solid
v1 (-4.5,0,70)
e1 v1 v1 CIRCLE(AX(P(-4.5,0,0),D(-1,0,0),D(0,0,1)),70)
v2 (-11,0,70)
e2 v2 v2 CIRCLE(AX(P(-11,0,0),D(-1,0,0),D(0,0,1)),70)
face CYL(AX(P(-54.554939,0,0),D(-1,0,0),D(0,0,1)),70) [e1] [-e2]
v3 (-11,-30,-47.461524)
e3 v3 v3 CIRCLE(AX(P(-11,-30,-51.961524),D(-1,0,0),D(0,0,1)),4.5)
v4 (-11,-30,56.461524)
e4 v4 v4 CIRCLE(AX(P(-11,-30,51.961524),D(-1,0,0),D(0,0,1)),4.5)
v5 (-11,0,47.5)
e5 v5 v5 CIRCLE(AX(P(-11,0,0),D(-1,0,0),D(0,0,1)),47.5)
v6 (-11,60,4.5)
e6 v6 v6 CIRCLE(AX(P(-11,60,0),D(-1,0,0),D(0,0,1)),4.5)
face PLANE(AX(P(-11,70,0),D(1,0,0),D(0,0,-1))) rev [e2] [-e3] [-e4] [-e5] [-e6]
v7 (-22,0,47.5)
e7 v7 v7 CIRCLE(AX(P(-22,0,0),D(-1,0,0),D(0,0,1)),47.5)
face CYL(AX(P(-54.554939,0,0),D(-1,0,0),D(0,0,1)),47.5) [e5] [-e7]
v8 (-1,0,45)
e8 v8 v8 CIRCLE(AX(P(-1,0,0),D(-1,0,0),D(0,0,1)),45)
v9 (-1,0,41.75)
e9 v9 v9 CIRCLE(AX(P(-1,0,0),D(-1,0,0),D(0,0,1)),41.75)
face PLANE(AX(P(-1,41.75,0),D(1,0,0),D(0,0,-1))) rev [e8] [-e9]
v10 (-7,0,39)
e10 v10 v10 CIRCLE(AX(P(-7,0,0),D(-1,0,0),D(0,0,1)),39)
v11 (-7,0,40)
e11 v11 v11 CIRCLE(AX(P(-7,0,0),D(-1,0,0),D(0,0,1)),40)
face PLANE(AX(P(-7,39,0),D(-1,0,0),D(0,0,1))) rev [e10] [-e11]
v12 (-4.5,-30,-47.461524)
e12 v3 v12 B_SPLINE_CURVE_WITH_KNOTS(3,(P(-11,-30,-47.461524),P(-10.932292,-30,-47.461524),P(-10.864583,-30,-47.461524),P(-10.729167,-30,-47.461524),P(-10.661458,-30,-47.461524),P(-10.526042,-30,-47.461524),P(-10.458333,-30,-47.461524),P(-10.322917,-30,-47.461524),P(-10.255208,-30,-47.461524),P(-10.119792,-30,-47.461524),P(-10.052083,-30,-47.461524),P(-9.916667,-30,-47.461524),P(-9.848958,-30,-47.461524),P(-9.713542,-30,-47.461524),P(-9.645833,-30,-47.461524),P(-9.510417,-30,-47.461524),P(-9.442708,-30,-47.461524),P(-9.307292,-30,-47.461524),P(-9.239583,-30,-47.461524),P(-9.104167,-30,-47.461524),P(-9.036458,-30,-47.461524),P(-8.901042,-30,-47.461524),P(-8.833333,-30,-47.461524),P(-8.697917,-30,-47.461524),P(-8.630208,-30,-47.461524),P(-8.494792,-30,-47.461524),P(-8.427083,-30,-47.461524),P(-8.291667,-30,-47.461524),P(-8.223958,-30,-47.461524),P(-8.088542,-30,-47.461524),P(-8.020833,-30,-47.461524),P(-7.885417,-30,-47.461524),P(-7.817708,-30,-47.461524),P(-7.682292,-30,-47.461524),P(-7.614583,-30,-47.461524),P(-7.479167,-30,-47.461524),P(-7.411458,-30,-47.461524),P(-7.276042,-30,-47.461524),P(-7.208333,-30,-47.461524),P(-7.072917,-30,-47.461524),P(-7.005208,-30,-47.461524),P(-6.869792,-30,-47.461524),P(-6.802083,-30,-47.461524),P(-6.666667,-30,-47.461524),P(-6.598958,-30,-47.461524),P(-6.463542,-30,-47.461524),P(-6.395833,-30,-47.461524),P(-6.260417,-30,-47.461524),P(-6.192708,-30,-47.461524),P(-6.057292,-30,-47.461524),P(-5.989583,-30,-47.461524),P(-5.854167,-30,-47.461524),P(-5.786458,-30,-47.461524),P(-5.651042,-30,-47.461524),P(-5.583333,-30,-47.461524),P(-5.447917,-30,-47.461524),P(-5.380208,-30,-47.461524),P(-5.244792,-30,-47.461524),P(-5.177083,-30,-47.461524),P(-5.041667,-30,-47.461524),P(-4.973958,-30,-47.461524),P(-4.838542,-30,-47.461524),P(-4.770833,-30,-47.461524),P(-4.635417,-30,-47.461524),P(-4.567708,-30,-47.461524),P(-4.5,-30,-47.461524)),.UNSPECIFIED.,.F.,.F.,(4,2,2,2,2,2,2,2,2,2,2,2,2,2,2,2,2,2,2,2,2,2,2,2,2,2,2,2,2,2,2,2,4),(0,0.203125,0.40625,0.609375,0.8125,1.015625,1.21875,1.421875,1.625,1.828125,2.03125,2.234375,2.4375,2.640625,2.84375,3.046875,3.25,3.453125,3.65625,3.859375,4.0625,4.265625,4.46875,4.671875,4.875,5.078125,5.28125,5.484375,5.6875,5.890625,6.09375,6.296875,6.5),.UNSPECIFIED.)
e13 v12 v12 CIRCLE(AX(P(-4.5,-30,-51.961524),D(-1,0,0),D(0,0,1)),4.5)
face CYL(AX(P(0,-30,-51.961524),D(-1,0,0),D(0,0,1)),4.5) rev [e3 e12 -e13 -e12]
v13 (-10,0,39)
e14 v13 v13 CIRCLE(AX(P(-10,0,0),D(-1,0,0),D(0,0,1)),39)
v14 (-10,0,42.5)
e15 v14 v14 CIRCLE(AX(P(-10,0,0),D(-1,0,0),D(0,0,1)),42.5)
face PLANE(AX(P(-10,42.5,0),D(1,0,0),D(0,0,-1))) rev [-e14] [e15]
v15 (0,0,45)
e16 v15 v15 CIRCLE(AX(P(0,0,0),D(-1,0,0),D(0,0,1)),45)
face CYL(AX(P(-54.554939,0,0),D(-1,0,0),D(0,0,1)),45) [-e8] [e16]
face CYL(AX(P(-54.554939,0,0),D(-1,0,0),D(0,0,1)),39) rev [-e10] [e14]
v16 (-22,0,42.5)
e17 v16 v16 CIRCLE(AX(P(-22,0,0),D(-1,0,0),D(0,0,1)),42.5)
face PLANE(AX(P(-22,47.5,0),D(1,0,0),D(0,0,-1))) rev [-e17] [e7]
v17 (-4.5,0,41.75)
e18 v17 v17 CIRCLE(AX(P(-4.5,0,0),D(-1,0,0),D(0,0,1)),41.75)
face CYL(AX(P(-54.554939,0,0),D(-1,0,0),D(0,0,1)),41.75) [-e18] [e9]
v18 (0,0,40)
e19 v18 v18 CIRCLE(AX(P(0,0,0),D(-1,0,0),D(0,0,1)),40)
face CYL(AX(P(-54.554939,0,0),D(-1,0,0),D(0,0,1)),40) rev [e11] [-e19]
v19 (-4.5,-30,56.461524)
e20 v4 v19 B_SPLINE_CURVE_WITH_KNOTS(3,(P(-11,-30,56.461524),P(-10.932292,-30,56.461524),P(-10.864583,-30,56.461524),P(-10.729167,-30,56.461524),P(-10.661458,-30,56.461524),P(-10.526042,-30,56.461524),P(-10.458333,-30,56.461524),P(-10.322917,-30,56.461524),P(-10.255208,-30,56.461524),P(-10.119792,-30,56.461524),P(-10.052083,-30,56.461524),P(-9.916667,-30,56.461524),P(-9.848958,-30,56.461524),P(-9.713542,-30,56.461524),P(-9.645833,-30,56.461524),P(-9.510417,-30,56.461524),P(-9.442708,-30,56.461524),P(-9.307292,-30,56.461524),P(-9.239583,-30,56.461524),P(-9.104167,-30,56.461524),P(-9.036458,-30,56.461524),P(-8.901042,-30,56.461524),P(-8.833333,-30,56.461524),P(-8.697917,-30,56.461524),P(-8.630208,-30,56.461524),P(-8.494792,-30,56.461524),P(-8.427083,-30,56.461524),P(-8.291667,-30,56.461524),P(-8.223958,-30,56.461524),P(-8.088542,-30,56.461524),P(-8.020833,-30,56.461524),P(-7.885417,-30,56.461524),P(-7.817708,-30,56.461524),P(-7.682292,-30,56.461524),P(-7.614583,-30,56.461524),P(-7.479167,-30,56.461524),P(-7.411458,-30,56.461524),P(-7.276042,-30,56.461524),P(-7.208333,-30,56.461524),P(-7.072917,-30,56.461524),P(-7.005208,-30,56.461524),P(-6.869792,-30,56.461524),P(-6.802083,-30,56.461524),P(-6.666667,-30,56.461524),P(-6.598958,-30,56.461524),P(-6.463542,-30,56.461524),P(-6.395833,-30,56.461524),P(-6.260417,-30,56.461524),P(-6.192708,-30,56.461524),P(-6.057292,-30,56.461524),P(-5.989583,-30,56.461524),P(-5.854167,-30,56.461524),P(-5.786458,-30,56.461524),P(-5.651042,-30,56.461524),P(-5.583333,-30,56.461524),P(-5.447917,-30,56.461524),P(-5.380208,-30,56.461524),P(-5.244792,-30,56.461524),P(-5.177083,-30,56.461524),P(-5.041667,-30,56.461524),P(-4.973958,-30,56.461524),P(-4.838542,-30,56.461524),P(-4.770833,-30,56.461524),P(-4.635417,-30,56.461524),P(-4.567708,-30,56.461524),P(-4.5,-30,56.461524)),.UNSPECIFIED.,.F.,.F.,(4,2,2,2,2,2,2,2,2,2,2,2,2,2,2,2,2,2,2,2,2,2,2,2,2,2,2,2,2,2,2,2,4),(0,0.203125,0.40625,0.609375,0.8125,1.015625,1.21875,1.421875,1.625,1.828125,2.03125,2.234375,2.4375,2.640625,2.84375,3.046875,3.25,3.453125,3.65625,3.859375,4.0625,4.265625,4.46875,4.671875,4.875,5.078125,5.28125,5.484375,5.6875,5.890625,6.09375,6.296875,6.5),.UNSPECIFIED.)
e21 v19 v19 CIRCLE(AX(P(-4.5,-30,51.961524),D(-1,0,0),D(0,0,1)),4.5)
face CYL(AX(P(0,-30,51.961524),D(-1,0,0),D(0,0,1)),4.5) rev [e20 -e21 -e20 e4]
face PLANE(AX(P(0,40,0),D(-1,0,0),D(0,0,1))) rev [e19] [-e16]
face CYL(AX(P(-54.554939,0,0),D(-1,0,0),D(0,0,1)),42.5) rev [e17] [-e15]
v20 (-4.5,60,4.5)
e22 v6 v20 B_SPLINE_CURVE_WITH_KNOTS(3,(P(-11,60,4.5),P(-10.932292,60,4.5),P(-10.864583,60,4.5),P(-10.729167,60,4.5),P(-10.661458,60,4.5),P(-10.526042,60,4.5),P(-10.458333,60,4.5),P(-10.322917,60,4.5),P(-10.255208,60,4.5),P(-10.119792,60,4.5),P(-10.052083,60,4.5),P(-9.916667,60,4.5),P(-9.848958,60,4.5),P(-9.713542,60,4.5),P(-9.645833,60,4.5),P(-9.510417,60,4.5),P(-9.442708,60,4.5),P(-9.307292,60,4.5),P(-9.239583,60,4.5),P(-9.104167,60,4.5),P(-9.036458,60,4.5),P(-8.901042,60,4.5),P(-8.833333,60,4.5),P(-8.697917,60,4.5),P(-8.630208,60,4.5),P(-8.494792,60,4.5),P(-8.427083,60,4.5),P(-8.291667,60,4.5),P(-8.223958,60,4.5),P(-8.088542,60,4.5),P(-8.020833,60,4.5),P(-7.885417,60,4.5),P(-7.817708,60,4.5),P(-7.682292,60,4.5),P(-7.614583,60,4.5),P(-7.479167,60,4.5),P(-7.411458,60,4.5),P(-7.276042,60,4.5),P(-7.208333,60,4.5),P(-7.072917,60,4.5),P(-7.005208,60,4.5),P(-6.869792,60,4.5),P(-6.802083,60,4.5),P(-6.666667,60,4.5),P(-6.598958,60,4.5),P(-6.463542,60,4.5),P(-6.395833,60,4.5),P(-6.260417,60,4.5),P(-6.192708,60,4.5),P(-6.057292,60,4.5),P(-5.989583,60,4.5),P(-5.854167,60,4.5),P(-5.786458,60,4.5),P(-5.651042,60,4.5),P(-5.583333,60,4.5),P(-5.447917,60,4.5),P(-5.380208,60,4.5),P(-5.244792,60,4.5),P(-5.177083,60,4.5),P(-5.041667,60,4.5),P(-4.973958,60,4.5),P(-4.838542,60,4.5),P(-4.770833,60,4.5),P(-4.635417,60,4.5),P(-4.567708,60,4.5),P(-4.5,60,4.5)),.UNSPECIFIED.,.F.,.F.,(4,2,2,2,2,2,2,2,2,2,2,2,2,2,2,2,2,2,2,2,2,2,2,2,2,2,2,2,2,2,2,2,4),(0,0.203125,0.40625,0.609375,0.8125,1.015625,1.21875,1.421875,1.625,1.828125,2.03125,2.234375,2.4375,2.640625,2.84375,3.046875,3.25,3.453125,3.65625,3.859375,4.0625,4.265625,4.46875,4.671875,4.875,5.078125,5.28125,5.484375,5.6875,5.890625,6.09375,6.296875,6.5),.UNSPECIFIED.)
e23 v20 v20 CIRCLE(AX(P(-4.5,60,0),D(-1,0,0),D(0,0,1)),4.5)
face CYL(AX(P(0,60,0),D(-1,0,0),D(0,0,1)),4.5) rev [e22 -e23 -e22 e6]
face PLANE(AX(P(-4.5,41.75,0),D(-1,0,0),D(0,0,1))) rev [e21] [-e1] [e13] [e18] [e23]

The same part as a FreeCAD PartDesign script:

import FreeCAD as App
import Part
import Sketcher
from FreeCAD import Vector
Q = App.Units.Quantity

doc = App.newDocument("Part")
body = doc.addObject("PartDesign::Body", "Body")

sketch1 = body.newObject("Sketcher::SketchObject", "Sketch")
sketch1.AttachmentSupport = (doc.getObject("XY_Plane"), [""])
sketch1.MapMode = "FlatFace"
sketch1.addGeometry(Part.LineSegment(Vector(0, 40, 0), Vector(0, 45, 0)), False)
sketch1.addGeometry(Part.LineSegment(Vector(0, 45, 0), Vector(-1, 45, 0)), False)
sketch1.addGeometry(Part.LineSegment(Vector(-1, 45, 0), Vector(-1, 41.8, 0)), False)
sketch1.addGeometry(Part.LineSegment(Vector(-1, 41.8, 0), Vector(-4.5, 41.8, 0)), False)
sketch1.addGeometry(Part.LineSegment(Vector(-4.5, 41.8, 0), Vector(-4.5, 70, 0)), False)
sketch1.addGeometry(Part.LineSegment(Vector(-4.5, 70, 0), Vector(-11, 70, 0)), False)
sketch1.addGeometry(Part.LineSegment(Vector(-11, 70, 0), Vector(-11, 47.5, 0)), False)
sketch1.addGeometry(Part.LineSegment(Vector(-11, 47.5, 0), Vector(-22, 47.5, 0)), False)
sketch1.addGeometry(Part.LineSegment(Vector(-22, 47.5, 0), Vector(-22, 42.5, 0)), False)
sketch1.addGeometry(Part.LineSegment(Vector(-22, 42.5, 0), Vector(-10, 42.5, 0)), False)
sketch1.addGeometry(Part.LineSegment(Vector(-10, 42.5, 0), Vector(-10, 39, 0)), False)
sketch1.addGeometry(Part.LineSegment(Vector(-10, 39, 0), Vector(-7, 39, 0)), False)
sketch1.addGeometry(Part.LineSegment(Vector(-7, 39, 0), Vector(-7, 40, 0)), False)
sketch1.addGeometry(Part.LineSegment(Vector(-7, 40, 0), Vector(0, 40, 0)), False)
sketch1.addConstraint(Sketcher.Constraint("Coincident", 0, 2, 1, 1))
sketch1.addConstraint(Sketcher.Constraint("Coincident", 1, 2, 2, 1))
sketch1.addConstraint(Sketcher.Constraint("Coincident", 2, 2, 3, 1))
sketch1.addConstraint(Sketcher.Constraint("Coincident", 3, 2, 4, 1))
sketch1.addConstraint(Sketcher.Constraint("Coincident", 4, 2, 5, 1))
sketch1.addConstraint(Sketcher.Constraint("Coincident", 5, 2, 6, 1))
sketch1.addConstraint(Sketcher.Constraint("Coincident", 6, 2, 7, 1))
sketch1.addConstraint(Sketcher.Constraint("Coincident", 7, 2, 8, 1))
sketch1.addConstraint(Sketcher.Constraint("Coincident", 8, 2, 9, 1))
sketch1.addConstraint(Sketcher.Constraint("Coincident", 9, 2, 10, 1))
sketch1.addConstraint(Sketcher.Constraint("Coincident", 10, 2, 11, 1))
sketch1.addConstraint(Sketcher.Constraint("Coincident", 11, 2, 12, 1))
sketch1.addConstraint(Sketcher.Constraint("Coincident", 12, 2, 13, 1))
sketch1.addConstraint(Sketcher.Constraint("Coincident", 13, 2, 0, 1))
sketch1.addConstraint(Sketcher.Constraint("Vertical", 0))
sketch1.addConstraint(Sketcher.Constraint("Horizontal", 1))
sketch1.addConstraint(Sketcher.Constraint("Vertical", 2))
sketch1.addConstraint(Sketcher.Constraint("Horizontal", 3))
sketch1.addConstraint(Sketcher.Constraint("Vertical", 4))
sketch1.addConstraint(Sketcher.Constraint("Horizontal", 5))
sketch1.addConstraint(Sketcher.Constraint("Vertical", 6))
sketch1.addConstraint(Sketcher.Constraint("Horizontal", 7))
sketch1.addConstraint(Sketcher.Constraint("Vertical", 8))
sketch1.addConstraint(Sketcher.Constraint("Horizontal", 9))
sketch1.addConstraint(Sketcher.Constraint("Vertical", 10))
sketch1.addConstraint(Sketcher.Constraint("Horizontal", 11))
sketch1.addConstraint(Sketcher.Constraint("Vertical", 12))
sketch1.addConstraint(Sketcher.Constraint("Horizontal", 13))
sketch1.addConstraint(Sketcher.Constraint("PointOnObject", 0, 2, -2))
sketch1.addConstraint(Sketcher.Constraint("Equal", 0, 8))
sketch1.addConstraint(Sketcher.Constraint("Equal", 3, 10))
sketch1.addConstraint(Sketcher.Constraint("Equal", 1, 12))
sketch1.addConstraint(Sketcher.Constraint("DistanceX", 1, 2, 1, 1, Q("1 mm")))
sketch1.addConstraint(Sketcher.Constraint("DistanceX", 7, 2, 7, 1, Q("11 mm")))
sketch1.addConstraint(Sketcher.Constraint("DistanceX", 9, 1, 9, 2, Q("12 mm")))
sketch1.addConstraint(Sketcher.Constraint("DistanceX", 11, 1, 11, 2, Q("3 mm")))
sketch1.addConstraint(Sketcher.Constraint("DistanceX", 13, 1, 13, 2, Q("7 mm")))
sketch1.addConstraint(Sketcher.Constraint("DistanceY", 0, 1, 0, 2, Q("5 mm")))
sketch1.addConstraint(Sketcher.Constraint("DistanceX", 3, 2, 3, 1, Q("3.5 mm")))
sketch1.addConstraint(Sketcher.Constraint("DistanceY", 6, 2, 6, 1, Q("22.5 mm")))
sketch1.addConstraint(Sketcher.Constraint("DistanceY", -1, 1, 0, 2, Q("45 mm")))
sketch1.addConstraint(Sketcher.Constraint("DistanceY", 2, 2, 2, 1, Q("3.25 mm")))
revolution = body.newObject("PartDesign::Revolution", "Revolution")
revolution.Profile = sketch1
revolution.ReferenceAxis = (sketch1, ["H_Axis"])
revolution.Angle = 360

sketch2 = body.newObject("Sketcher::SketchObject", "Sketch001")
sketch2.AttachmentSupport = (doc.getObject("YZ_Plane"), [""])
sketch2.MapMode = "FlatFace"
sketch2.AttachmentOffset = App.Placement(Vector(0, 0, -11), App.Rotation())
sketch2.addGeometry(Part.Circle(Vector(60, 0, 0), Vector(0, 0, 1), 4.5), False)
sketch2.addGeometry(Part.Circle(Vector(-30, 52, 0), Vector(0, 0, 1), 4.5), False)
sketch2.addGeometry(Part.Circle(Vector(-30, -52, 0), Vector(0, 0, 1), 4.5), False)
sketch2.addConstraint(Sketcher.Constraint("Equal", 0, 1))
sketch2.addConstraint(Sketcher.Constraint("Equal", 1, 2))
sketch2.addConstraint(Sketcher.Constraint("Symmetric", 1, 3, 2, 3, -1))
sketch2.addConstraint(Sketcher.Constraint("PointOnObject", 0, 3, -1))
sketch2.addConstraint(Sketcher.Constraint("Diameter", 0, Q("9 mm")))
sketch2.addConstraint(Sketcher.Constraint("DistanceX", -1, 1, 0, 3, Q("60 mm")))
sketch2.addConstraint(Sketcher.Constraint("DistanceX", 1, 3, -1, 1, Q("30 mm")))
sketch2.addConstraint(Sketcher.Constraint("DistanceY", 2, 3, 1, 3, Q("103.923048 mm")))
pocket1 = body.newObject("PartDesign::Pocket", "Pocket")
pocket1.Profile = sketch2
pocket1.Type = "ThroughAll"
pocket1.Reversed = True

doc.recompute()
